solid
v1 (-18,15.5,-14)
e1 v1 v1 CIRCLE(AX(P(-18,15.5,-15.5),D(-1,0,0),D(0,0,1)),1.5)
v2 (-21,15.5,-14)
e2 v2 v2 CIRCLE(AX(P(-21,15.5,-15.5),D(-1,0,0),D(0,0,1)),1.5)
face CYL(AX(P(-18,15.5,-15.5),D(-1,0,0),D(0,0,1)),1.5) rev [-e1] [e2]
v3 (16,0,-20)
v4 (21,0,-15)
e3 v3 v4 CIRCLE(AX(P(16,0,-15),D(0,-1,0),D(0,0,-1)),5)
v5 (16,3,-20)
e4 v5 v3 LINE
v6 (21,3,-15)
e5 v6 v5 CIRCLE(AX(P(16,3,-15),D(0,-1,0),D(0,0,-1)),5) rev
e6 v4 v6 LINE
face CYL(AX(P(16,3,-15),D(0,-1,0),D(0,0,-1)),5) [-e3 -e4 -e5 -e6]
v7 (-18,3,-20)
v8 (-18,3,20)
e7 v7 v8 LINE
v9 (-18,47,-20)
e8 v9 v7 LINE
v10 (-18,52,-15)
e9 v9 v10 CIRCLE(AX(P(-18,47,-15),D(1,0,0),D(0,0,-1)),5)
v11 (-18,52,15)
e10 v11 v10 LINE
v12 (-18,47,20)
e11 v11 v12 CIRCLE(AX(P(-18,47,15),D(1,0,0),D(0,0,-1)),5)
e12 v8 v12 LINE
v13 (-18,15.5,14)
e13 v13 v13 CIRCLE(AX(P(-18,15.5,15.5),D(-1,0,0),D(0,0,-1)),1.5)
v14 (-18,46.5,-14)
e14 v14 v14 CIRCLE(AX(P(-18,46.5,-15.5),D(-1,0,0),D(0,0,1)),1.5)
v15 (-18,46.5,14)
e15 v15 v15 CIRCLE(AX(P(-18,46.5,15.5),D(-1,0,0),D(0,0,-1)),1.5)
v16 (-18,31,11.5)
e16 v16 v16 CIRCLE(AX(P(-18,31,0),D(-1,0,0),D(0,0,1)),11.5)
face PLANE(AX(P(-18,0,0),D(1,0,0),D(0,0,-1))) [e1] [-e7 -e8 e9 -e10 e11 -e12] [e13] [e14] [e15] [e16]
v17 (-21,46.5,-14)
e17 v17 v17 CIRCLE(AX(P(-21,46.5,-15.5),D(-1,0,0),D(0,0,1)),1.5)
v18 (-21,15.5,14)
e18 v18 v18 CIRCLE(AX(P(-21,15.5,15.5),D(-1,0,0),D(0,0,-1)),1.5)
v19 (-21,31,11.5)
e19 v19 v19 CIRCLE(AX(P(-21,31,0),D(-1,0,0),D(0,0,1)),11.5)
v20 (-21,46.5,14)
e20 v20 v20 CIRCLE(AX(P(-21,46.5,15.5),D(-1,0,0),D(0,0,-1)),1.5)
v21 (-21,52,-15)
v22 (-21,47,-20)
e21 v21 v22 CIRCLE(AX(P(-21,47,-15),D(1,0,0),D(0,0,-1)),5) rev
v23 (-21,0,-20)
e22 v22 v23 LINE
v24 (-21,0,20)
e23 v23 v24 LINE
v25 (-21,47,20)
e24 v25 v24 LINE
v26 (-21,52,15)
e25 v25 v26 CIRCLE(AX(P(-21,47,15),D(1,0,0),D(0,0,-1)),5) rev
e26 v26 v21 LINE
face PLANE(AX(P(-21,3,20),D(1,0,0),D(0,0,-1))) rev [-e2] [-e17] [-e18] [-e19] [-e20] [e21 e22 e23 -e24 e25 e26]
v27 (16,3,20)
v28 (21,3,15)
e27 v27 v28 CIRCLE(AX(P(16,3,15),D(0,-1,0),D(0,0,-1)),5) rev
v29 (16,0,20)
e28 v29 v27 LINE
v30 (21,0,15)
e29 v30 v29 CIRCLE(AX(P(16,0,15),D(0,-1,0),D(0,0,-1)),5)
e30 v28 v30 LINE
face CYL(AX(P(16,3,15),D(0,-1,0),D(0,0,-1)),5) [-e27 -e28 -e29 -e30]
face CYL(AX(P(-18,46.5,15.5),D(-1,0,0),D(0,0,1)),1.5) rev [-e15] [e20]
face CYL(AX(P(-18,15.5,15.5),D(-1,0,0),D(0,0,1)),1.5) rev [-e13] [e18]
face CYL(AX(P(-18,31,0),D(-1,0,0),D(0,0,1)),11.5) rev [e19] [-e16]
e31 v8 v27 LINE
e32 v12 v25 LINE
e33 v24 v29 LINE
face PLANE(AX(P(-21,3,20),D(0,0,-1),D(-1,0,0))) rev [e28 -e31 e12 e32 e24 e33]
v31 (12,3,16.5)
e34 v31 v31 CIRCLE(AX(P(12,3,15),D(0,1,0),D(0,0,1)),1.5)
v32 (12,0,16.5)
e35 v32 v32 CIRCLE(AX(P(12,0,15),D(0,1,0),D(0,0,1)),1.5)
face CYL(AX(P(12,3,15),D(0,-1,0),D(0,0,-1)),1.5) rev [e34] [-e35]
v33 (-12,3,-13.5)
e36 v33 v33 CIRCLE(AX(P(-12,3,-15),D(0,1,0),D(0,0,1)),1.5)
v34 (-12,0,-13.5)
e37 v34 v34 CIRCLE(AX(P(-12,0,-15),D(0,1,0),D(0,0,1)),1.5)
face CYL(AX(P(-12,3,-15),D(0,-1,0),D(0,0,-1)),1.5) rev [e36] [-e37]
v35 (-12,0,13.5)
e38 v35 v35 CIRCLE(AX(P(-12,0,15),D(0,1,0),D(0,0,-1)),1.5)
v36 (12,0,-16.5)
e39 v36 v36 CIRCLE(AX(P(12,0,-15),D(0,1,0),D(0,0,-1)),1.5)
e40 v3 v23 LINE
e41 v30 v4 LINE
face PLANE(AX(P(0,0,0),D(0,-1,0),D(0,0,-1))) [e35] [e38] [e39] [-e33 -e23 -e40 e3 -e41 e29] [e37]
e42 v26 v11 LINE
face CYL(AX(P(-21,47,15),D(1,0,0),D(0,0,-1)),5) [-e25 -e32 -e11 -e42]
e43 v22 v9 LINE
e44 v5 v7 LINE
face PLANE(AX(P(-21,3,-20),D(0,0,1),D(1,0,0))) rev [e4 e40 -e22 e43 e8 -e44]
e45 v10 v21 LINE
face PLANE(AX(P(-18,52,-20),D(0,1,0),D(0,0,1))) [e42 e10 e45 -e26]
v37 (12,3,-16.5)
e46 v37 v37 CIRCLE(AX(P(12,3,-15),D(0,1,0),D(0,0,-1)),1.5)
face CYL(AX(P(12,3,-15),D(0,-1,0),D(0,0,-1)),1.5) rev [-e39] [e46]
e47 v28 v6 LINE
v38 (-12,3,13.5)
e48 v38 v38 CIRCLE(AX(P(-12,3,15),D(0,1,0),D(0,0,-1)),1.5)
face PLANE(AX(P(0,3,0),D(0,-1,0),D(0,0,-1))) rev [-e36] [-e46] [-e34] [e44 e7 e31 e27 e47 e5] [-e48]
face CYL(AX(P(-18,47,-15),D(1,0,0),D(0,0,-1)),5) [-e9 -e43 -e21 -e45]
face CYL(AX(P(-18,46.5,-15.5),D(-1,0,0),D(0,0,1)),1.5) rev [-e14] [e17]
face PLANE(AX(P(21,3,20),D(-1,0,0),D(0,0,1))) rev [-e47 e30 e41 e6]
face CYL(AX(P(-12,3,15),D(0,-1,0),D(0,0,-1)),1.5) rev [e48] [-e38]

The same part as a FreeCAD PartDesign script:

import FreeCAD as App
import Part
import Sketcher

V = App.Vector
Q = App.Units.Quantity


def edges_at(feature, points):
    """Names of the edges that pass closest to the given points."""
    edges = feature.Shape.Edges
    near = lambda p: min(range(len(edges)), key=lambda i: edges[i].distToShape(Part.Vertex(*p))[0])
    return sorted({f"Edge{near(p) + 1}" for p in points})


def add_polygon(sketch, points):
    """Adds a closed chain of lines whose ends are joined by coincident constraints."""
    first, n = sketch.GeometryCount, len(points)
    for a, b in zip(points, points[1:] + points[:1]):
        sketch.addGeometry(Part.LineSegment(App.Vector(*a, 0), App.Vector(*b, 0)), False)
    for i in range(n):
        sketch.addConstraint(Sketcher.Constraint("Coincident", first + i, 2, first + (i + 1) % n, 1))

doc = App.newDocument("Part")
body = doc.addObject("PartDesign::Body", "Body")

sketch1 = body.newObject("Sketcher::SketchObject", "Sketch")
sketch1.AttachmentSupport = (doc.getObject("XZ_Plane"), [""])
sketch1.MapMode = "FlatFace"
add_polygon(sketch1, [(-21, -20), (-21, 20), (21, 20), (21, -20)])
sketch1.addGeometry(Part.Circle(V(-12, 15, 0), V(0, 0, 1), 1.5), False)
sketch1.addGeometry(Part.Circle(V(12, 15, 0), V(0, 0, 1), 1.5), False)
sketch1.addGeometry(Part.Circle(V(-12, -15, 0), V(0, 0, 1), 1.5), False)
sketch1.addGeometry(Part.Circle(V(12, -15, 0), V(0, 0, 1), 1.5), False)
sketch1.addConstraint(Sketcher.Constraint("Vertical", 0))
sketch1.addConstraint(Sketcher.Constraint("Horizontal", 1))
sketch1.addConstraint(Sketcher.Constraint("Vertical", 2))
sketch1.addConstraint(Sketcher.Constraint("Horizontal", 3))
sketch1.addConstraint(Sketcher.Constraint("Equal", 4, 5))
sketch1.addConstraint(Sketcher.Constraint("Equal", 5, 6))
sketch1.addConstraint(Sketcher.Constraint("Equal", 6, 7))
sketch1.addConstraint(Sketcher.Constraint("Symmetric", 5, 3, 6, 3, -1, 1))
sketch1.addConstraint(Sketcher.Constraint("Symmetric", 4, 3, 7, 3, -1, 1))
sketch1.addConstraint(Sketcher.Constraint("Symmetric", 0, 2, 2, 2, -1, 1))
sketch1.addConstraint(Sketcher.Constraint("Symmetric", 4, 3, 5, 3, -2))
sketch1.addConstraint(Sketcher.Constraint("Diameter", 4, Q("3 mm")))
sketch1.addConstraint(Sketcher.Constraint("DistanceX", 1, 1, 1, 2, Q("42 mm")))
sketch1.addConstraint(Sketcher.Constraint("DistanceY", 0, 1, 0, 2, Q("40 mm")))
sketch1.addConstraint(Sketcher.Constraint("DistanceX", 4, 3, -1, 1, Q("12 mm")))
sketch1.addConstraint(Sketcher.Constraint("DistanceY", -1, 1, 4, 3, Q("15 mm")))
pad1 = body.newObject("PartDesign::Pad", "Pad")
pad1.Profile = sketch1
pad1.Length = 3
pad1.Reversed = True

sketch2 = body.newObject("Sketcher::SketchObject", "Sketch001")
sketch2.AttachmentSupport = (doc.getObject("YZ_Plane"), [""])
sketch2.MapMode = "FlatFace"
sketch2.AttachmentOffset = App.Placement(V(0, 0, -21), App.Rotation())
add_polygon(sketch2, [(52, -20), (3, -20), (3, 20), (52, 20)])
sketch2.addGeometry(Part.Circle(V(15.5, -15.5, 0), V(0, 0, 1), 1.5), False)
sketch2.addGeometry(Part.Circle(V(15.5, 15.5, 0), V(0, 0, 1), 1.5), False)
sketch2.addGeometry(Part.Circle(V(46.5, -15.5, 0), V(0, 0, 1), 1.5), False)
sketch2.addGeometry(Part.Circle(V(31, 0, 0), V(0, 0, 1), 11.5), False)
sketch2.addGeometry(Part.Circle(V(46.5, 15.5, 0), V(0, 0, 1), 1.5), False)
sketch2.addConstraint(Sketcher.Constraint("Horizontal", 0))
sketch2.addConstraint(Sketcher.Constraint("Vertical", 1))
sketch2.addConstraint(Sketcher.Constraint("Horizontal", 2))
sketch2.addConstraint(Sketcher.Constraint("Vertical", 3))
sketch2.addConstraint(Sketcher.Constraint("Equal", 4, 5))
sketch2.addConstraint(Sketcher.Constraint("Equal", 5, 6))
sketch2.addConstraint(Sketcher.Constraint("Equal", 6, 8))
sketch2.addConstraint(Sketcher.Constraint("Symmetric", 4, 3, 5, 3, -1))
sketch2.addConstraint(Sketcher.Constraint("Symmetric", 6, 3, 8, 3, -1))
sketch2.addConstraint(Sketcher.Constraint("PointOnObject", 7, 3, -1))
sketch2.addConstraint(Sketcher.Constraint("Horizontal", 4, 3, 6, 3))
sketch2.addConstraint(Sketcher.Constraint("Diameter", 4, Q("3 mm")))
sketch2.addConstraint(Sketcher.Constraint("Diameter", 7, Q("23 mm")))
sketch2.addConstraint(Sketcher.Constraint("DistanceX", 0, 2, 0, 1, Q("49 mm")))
sketch2.addConstraint(Sketcher.Constraint("DistanceY", 1, 1, 1, 2, Q("40 mm")))
sketch2.addConstraint(Sketcher.Constraint("DistanceX", -1, 1, 7, 3, Q("31 mm")))
sketch2.addConstraint(Sketcher.Constraint("DistanceX", -1, 1, 0, 2, Q("3 mm")))
sketch2.addConstraint(Sketcher.Constraint("DistanceY", 0, 2, -1, 1, Q("20 mm")))
sketch2.addConstraint(Sketcher.Constraint("DistanceY", 4, 3, 5, 3, Q("31 mm")))
sketch2.addConstraint(Sketcher.Constraint("DistanceX", 4, 3, 6, 3, Q("31 mm")))
sketch2.addConstraint(Sketcher.Constraint("DistanceX", -1, 1, 4, 3, Q("15.5 mm")))
pad2 = body.newObject("PartDesign::Pad", "Pad001")
pad2.Profile = sketch2
pad2.Length = 3
doc.recompute()

fillet = body.newObject("PartDesign::Fillet", "Fillet")
fillet.Base = (pad2, edges_at(pad2, [(-19.5, 52, -20), (-19.5, 52, 20)]))
fillet.Radius = 5
doc.recompute()

fillet2 = body.newObject("PartDesign::Fillet", "Fillet001")
fillet2.Base = (fillet, edges_at(fillet, [(21, 1.5, 20), (21, 1.5, -20)]))
fillet2.Radius = 5

doc.recompute()
